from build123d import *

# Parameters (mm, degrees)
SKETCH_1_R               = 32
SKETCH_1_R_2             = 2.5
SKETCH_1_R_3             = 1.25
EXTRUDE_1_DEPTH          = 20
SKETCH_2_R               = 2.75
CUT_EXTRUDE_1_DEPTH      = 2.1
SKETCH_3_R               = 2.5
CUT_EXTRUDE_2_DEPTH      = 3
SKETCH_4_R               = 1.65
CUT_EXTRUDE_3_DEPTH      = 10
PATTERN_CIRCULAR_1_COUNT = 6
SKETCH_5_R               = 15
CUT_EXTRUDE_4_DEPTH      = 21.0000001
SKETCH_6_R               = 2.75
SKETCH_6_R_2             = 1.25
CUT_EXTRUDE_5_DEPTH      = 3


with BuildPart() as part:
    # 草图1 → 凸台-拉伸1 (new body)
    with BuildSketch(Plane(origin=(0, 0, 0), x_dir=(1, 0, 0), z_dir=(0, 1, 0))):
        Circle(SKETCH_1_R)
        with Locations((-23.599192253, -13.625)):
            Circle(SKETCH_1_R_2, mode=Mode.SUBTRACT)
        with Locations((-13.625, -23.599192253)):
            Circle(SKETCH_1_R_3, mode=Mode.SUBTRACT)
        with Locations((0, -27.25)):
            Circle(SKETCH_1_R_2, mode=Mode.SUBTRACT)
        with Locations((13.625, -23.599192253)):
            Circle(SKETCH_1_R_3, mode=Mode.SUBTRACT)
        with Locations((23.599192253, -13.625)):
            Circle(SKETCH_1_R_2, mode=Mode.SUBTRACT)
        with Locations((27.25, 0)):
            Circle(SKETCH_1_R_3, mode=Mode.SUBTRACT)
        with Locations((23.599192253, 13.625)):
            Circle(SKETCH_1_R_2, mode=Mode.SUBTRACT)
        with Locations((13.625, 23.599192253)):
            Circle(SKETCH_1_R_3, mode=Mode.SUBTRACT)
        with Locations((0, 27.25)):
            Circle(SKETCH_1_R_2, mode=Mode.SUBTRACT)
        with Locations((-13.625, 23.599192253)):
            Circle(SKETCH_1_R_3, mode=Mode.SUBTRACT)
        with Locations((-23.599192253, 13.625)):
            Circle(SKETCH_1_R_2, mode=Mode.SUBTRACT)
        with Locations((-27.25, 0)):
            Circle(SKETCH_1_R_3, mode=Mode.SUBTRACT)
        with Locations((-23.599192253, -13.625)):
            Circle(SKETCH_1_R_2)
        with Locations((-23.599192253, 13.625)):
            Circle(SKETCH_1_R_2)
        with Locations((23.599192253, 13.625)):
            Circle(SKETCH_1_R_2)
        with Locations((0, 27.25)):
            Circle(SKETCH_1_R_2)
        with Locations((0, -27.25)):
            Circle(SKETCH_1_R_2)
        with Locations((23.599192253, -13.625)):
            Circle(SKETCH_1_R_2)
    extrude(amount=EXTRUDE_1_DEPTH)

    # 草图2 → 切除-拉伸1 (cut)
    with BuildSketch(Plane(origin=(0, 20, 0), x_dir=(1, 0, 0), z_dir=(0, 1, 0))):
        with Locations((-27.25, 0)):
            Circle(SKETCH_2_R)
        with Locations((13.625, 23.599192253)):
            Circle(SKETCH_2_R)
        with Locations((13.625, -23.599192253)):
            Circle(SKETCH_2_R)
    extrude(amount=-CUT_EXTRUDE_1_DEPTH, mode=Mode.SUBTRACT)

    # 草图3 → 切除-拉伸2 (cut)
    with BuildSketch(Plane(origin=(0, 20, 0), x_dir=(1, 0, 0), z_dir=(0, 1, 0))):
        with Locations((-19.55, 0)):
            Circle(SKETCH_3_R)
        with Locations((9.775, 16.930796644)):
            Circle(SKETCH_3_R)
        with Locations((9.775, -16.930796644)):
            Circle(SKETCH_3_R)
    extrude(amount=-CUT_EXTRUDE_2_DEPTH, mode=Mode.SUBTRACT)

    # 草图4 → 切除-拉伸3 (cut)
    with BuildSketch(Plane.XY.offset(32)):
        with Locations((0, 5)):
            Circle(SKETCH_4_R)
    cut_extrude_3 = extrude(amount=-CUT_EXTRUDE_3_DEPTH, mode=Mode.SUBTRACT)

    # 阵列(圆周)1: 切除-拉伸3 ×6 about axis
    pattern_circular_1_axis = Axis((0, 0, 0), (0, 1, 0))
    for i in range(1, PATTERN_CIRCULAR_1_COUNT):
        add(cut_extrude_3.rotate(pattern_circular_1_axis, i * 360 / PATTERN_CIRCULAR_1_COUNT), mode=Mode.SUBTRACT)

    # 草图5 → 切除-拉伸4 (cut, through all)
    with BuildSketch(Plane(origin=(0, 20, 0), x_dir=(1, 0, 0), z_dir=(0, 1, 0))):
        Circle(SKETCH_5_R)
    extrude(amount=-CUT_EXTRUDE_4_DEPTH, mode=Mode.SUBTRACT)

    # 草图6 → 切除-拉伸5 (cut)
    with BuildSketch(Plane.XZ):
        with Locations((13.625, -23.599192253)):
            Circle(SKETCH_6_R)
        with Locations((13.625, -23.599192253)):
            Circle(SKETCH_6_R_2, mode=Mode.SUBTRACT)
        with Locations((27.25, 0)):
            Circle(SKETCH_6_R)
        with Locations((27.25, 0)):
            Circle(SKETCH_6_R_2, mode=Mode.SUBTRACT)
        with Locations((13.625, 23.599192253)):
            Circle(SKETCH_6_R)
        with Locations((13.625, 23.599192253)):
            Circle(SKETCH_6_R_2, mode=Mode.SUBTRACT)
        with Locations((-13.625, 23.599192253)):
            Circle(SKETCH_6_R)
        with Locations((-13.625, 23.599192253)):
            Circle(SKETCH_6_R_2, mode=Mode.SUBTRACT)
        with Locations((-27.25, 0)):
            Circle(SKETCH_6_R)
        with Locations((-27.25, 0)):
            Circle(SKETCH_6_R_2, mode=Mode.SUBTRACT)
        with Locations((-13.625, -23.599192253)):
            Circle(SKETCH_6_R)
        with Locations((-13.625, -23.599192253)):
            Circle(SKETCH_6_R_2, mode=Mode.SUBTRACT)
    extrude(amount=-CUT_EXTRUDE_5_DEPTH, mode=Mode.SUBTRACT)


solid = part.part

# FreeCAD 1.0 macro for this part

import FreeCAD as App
import Part
import Sketcher
from FreeCAD import Vector
Q = App.Units.Quantity

doc = App.newDocument("Part")
body = doc.addObject("PartDesign::Body", "Body")

sketch1 = body.newObject("Sketcher::SketchObject", "Sketch")
sketch1.AttachmentSupport = (doc.getObject("XZ_Plane"), [""])
sketch1.MapMode = "FlatFace"
sketch1.addGeometry(Part.Circle(Vector(0, 0, 0), Vector(0, 0, 1), 32), False)
sketch1.addGeometry(Part.Circle(Vector(-13.6, 23.6, 0), Vector(0, 0, 1), 1.2), False)
sketch1.addGeometry(Part.Circle(Vector(13.6, 23.6, 0), Vector(0, 0, 1), 1.2), False)
sketch1.addGeometry(Part.Circle(Vector(-27.2, 0, 0), Vector(0, 0, 1), 1.2), False)
sketch1.addGeometry(Part.Circle(Vector(-13.6, -23.6, 0), Vector(0, 0, 1), 1.2), False)
sketch1.addGeometry(Part.Circle(Vector(27.2, 0, 0), Vector(0, 0, 1), 1.2), False)
sketch1.addGeometry(Part.Circle(Vector(13.6, -23.6, 0), Vector(0, 0, 1), 1.2), False)
sketch1.addConstraint(Sketcher.Constraint("Coincident", 0, 3, -1, 1))
sketch1.addConstraint(Sketcher.Constraint("Equal", 1, 2))
sketch1.addConstraint(Sketcher.Constraint("Equal", 2, 3))
sketch1.addConstraint(Sketcher.Constraint("Equal", 3, 4))
sketch1.addConstraint(Sketcher.Constraint("Equal", 4, 5))
sketch1.addConstraint(Sketcher.Constraint("Equal", 5, 6))
sketch1.addConstraint(Sketcher.Constraint("Symmetric", 2, 3, 4, 3, -1, 1))
sketch1.addConstraint(Sketcher.Constraint("Symmetric", 3, 3, 5, 3, -1, 1))
sketch1.addConstraint(Sketcher.Constraint("Symmetric", 1, 3, 6, 3, -1, 1))
sketch1.addConstraint(Sketcher.Constraint("Symmetric", 1, 3, 2, 3, -2))
sketch1.addConstraint(Sketcher.Constraint("PointOnObject", 3, 3, -1))
sketch1.addConstraint(Sketcher.Constraint("Diameter", 0, Q("64 mm")))
sketch1.addConstraint(Sketcher.Constraint("Diameter", 1, Q("2.5 mm")))
sketch1.addConstraint(Sketcher.Constraint("DistanceX", 3, 3, 5, 3, Q("54.5 mm")))
sketch1.addConstraint(Sketcher.Constraint("DistanceX", 1, 3, 2, 3, Q("27.25 mm")))
sketch1.addConstraint(Sketcher.Constraint("DistanceY", -1, 1, 1, 3, Q("23.599192 mm")))
pad1 = body.newObject("PartDesign::Pad", "Pad")
pad1.Profile = sketch1
pad1.Length = 20
pad1.Reversed = True

sketch2 = body.newObject("Sketcher::SketchObject", "Sketch001")
sketch2.AttachmentSupport = (doc.getObject("XZ_Plane"), [""])
sketch2.MapMode = "FlatFace"
sketch2.AttachmentOffset = App.Placement(Vector(0, 0, -20), App.Rotation())
sketch2.addGeometry(Part.Circle(Vector(-27.2, 0, 0), Vector(0, 0, 1), 2.8), False)
sketch2.addGeometry(Part.Circle(Vector(13.6, -23.6, 0), Vector(0, 0, 1), 2.8), False)
sketch2.addGeometry(Part.Circle(Vector(13.6, 23.6, 0), Vector(0, 0, 1), 2.8), False)
sketch2.addConstraint(Sketcher.Constraint("Equal", 0, 1))
sketch2.addConstraint(Sketcher.Constraint("Equal", 1, 2))
sketch2.addConstraint(Sketcher.Constraint("Symmetric", 1, 3, 2, 3, -1))
sketch2.addConstraint(Sketcher.Constraint("PointOnObject", 0, 3, -1))
sketch2.addConstraint(Sketcher.Constraint("Diameter", 0, Q("5.5 mm")))
sketch2.addConstraint(Sketcher.Constraint("DistanceX", 0, 3, -1, 1, Q("27.25 mm")))
sketch2.addConstraint(Sketcher.Constraint("DistanceX", -1, 1, 1, 3, Q("13.625 mm")))
sketch2.addConstraint(Sketcher.Constraint("DistanceY", 1, 3, -1, 1, Q("23.599192 mm")))
pocket1 = body.newObject("PartDesign::Pocket", "Pocket")
pocket1.Profile = sketch2
pocket1.Length = 2.1
pocket1.Reversed = True

sketch3 = body.newObject("Sketcher::SketchObject", "Sketch002")
sketch3.AttachmentSupport = (doc.getObject("XZ_Plane"), [""])
sketch3.MapMode = "FlatFace"
sketch3.AttachmentOffset = App.Placement(Vector(0, 0, -20), App.Rotation())
sketch3.addGeometry(Part.Circle(Vector(-19.6, 0, 0), Vector(0, 0, 1), 2.5), False)
sketch3.addGeometry(Part.Circle(Vector(9.8, -16.9, 0), Vector(0, 0, 1), 2.5), False)
sketch3.addGeometry(Part.Circle(Vector(9.8, 16.9, 0), Vector(0, 0, 1), 2.5), False)
sketch3.addConstraint(Sketcher.Constraint("Equal", 0, 1))
sketch3.addConstraint(Sketcher.Constraint("Equal", 1, 2))
sketch3.addConstraint(Sketcher.Constraint("Symmetric", 1, 3, 2, 3, -1))
sketch3.addConstraint(Sketcher.Constraint("PointOnObject", 0, 3, -1))
sketch3.addConstraint(Sketcher.Constraint("Diameter", 0, Q("5 mm")))
sketch3.addConstraint(Sketcher.Constraint("DistanceX", 0, 3, -1, 1, Q("19.55 mm")))
sketch3.addConstraint(Sketcher.Constraint("DistanceX", -1, 1, 1, 3, Q("9.775 mm")))
sketch3.addConstraint(Sketcher.Constraint("DistanceY", 1, 3, -1, 1, Q("16.930797 mm")))
pocket2 = body.newObject("PartDesign::Pocket", "Pocket001")
pocket2.Profile = sketch3
pocket2.Length = 3
pocket2.Reversed = True

sketch4 = body.newObject("Sketcher::SketchObject", "Sketch003")
sketch4.AttachmentSupport = (doc.getObject("XY_Plane"), [""])
sketch4.MapMode = "FlatFace"
sketch4.AttachmentOffset = App.Placement(Vector(0, 0, 32), App.Rotation())
sketch4.addGeometry(Part.Circle(Vector(0, 5, 0), Vector(0, 0, 1), 1.6), False)
sketch4.addConstraint(Sketcher.Constraint("PointOnObject", 0, 3, -2))
sketch4.addConstraint(Sketcher.Constraint("Diameter", 0, Q("3.3 mm")))
sketch4.addConstraint(Sketcher.Constraint("DistanceY", -1, 1, 0, 3, Q("5 mm")))
pocket3 = body.newObject("PartDesign::Pocket", "Pocket002")
pocket3.Profile = sketch4
pocket3.Length = 10
doc.recompute()

polarpattern = body.newObject("PartDesign::PolarPattern", "PolarPattern")
polarpattern.Originals = [pocket3]
polarpattern.Axis = (doc.getObject("Y_Axis"), [""])
polarpattern.Angle = 360
polarpattern.Occurrences = 6
body.Tip = polarpattern

sketch5 = body.newObject("Sketcher::SketchObject", "Sketch004")
sketch5.AttachmentSupport = (doc.getObject("XZ_Plane"), [""])
sketch5.MapMode = "FlatFace"
sketch5.AttachmentOffset = App.Placement(Vector(0, 0, -20), App.Rotation())
sketch5.addGeometry(Part.Circle(Vector(0, 0, 0), Vector(0, 0, 1), 15), False)
sketch5.addConstraint(Sketcher.Constraint("Coincident", 0, 3, -1, 1))
sketch5.addConstraint(Sketcher.Constraint("Diameter", 0, Q("30 mm")))
pocket4 = body.newObject("PartDesign::Pocket", "Pocket003")
pocket4.Profile = sketch5
pocket4.Type = "ThroughAll"
pocket4.Reversed = True

sketch6 = body.newObject("Sketcher::SketchObject", "Sketch005")
sketch6.AttachmentSupport = (doc.getObject("XZ_Plane"), [""])
sketch6.MapMode = "FlatFace"
sketch6.addGeometry(Part.Circle(Vector(13.6, -23.6, 0), Vector(0, 0, 1), 2.8), False)
sketch6.addGeometry(Part.Circle(Vector(13.6, -23.6, 0), Vector(0, 0, 1), 1.2), False)
sketch6.addGeometry(Part.Circle(Vector(27.2, 0, 0), Vector(0, 0, 1), 2.8), False)
sketch6.addGeometry(Part.Circle(Vector(27.2, 0, 0), Vector(0, 0, 1), 1.2), False)
sketch6.addGeometry(Part.Circle(Vector(13.6, 23.6, 0), Vector(0, 0, 1), 2.8), False)
sketch6.addGeometry(Part.Circle(Vector(13.6, 23.6, 0), Vector(0, 0, 1), 1.2), False)
sketch6.addGeometry(Part.Circle(Vector(-13.6, 23.6, 0), Vector(0, 0, 1), 2.8), False)
sketch6.addGeometry(Part.Circle(Vector(-13.6, 23.6, 0), Vector(0, 0, 1), 1.2), False)
sketch6.addGeometry(Part.Circle(Vector(-27.2, 0, 0), Vector(0, 0, 1), 2.8), False)
sketch6.addGeometry(Part.Circle(Vector(-27.2, 0, 0), Vector(0, 0, 1), 1.2), False)
sketch6.addGeometry(Part.Circle(Vector(-13.6, -23.6, 0), Vector(0, 0, 1), 2.8), False)
sketch6.addGeometry(Part.Circle(Vector(-13.6, -23.6, 0), Vector(0, 0, 1), 1.2), False)
sketch6.addConstraint(Sketcher.Constraint("Coincident", 1, 3, 0, 3))
sketch6.addConstraint(Sketcher.Constraint("Coincident", 3, 3, 2, 3))
sketch6.addConstraint(Sketcher.Constraint("Coincident", 5, 3, 4, 3))
sketch6.addConstraint(Sketcher.Constraint("Coincident", 7, 3, 6, 3))
sketch6.addConstraint(Sketcher.Constraint("Coincident", 9, 3, 8, 3))
sketch6.addConstraint(Sketcher.Constraint("Coincident", 11, 3, 10, 3))
sketch6.addConstraint(Sketcher.Constraint("Equal", 0, 2))
sketch6.addConstraint(Sketcher.Constraint("Equal", 1, 3))
sketch6.addConstraint(Sketcher.Constraint("Equal", 2, 4))
sketch6.addConstraint(Sketcher.Constraint("Equal", 3, 5))
sketch6.addConstraint(Sketcher.Constraint("Equal", 4, 6))
sketch6.addConstraint(Sketcher.Constraint("Equal", 5, 7))
sketch6.addConstraint(Sketcher.Constraint("Equal", 6, 8))
sketch6.addConstraint(Sketcher.Constraint("Equal", 7, 9))
sketch6.addConstraint(Sketcher.Constraint("Equal", 8, 10))
sketch6.addConstraint(Sketcher.Constraint("Equal", 9, 11))
sketch6.addConstraint(Sketcher.Constraint("Symmetric", 0, 3, 6, 3, -1, 1))
sketch6.addConstraint(Sketcher.Constraint("Symmetric", 2, 3, 8, 3, -1, 1))
sketch6.addConstraint(Sketcher.Constraint("Symmetric", 4, 3, 10, 3, -1, 1))
sketch6.addConstraint(Sketcher.Constraint("Symmetric", 4, 3, 6, 3, -2))
sketch6.addConstraint(Sketcher.Constraint("PointOnObject", 2, 3, -1))
sketch6.addConstraint(Sketcher.Constraint("Diameter", 0, Q("5.5 mm")))
sketch6.addConstraint(Sketcher.Constraint("Diameter", 1, Q("2.5 mm")))
sketch6.addConstraint(Sketcher.Constraint("DistanceX", -1, 1, 2, 3, Q("27.25 mm")))
sketch6.addConstraint(Sketcher.Constraint("DistanceX", 6, 3, 4, 3, Q("27.25 mm")))
sketch6.addConstraint(Sketcher.Constraint("DistanceY", 0, 3, -1, 1, Q("23.599192 mm")))
pocket5 = body.newObject("PartDesign::Pocket", "Pocket004")
pocket5.Profile = sketch6
pocket5.Length = 3

doc.recompute()
